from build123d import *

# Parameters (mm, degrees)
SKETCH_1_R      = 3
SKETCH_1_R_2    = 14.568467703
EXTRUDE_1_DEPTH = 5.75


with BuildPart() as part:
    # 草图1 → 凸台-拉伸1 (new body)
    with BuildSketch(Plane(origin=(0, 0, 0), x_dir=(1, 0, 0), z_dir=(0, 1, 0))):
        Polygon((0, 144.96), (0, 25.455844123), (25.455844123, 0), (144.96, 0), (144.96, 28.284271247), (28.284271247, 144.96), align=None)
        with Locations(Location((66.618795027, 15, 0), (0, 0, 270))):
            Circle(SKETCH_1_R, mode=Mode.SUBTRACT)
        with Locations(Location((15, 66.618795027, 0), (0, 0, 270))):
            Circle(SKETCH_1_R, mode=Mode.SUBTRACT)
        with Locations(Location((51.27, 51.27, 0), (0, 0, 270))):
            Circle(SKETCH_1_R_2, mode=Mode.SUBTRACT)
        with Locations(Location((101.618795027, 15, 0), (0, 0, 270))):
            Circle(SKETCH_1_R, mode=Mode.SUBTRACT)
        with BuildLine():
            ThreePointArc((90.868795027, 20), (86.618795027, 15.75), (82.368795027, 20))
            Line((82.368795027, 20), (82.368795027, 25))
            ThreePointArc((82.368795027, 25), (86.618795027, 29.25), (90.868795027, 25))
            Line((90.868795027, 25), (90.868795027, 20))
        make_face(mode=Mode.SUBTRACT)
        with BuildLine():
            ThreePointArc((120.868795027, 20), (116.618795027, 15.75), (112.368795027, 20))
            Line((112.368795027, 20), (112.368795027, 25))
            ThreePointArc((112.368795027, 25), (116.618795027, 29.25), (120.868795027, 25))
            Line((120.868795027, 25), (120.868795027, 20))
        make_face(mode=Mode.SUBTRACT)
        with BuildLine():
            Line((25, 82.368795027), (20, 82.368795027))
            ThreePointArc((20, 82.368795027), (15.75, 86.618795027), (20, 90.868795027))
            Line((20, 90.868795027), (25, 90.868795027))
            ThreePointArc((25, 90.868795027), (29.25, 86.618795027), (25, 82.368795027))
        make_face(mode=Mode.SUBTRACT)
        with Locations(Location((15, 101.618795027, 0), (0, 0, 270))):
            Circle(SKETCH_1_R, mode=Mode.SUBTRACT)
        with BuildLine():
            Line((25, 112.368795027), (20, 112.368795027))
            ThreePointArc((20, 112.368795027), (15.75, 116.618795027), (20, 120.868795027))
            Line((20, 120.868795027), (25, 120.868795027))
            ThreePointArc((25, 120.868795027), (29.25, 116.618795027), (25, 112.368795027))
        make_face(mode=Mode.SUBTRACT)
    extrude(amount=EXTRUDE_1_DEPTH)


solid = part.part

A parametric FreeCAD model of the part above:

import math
import FreeCAD as App
import Part
import Sketcher

V = App.Vector
Q = App.Units.Quantity


def add_polygon(sketch, points):
    """Adds a closed chain of lines whose ends are joined by coincident constraints."""
    first, n = sketch.GeometryCount, len(points)
    for a, b in zip(points, points[1:] + points[:1]):
        sketch.addGeometry(Part.LineSegment(App.Vector(*a, 0), App.Vector(*b, 0)), False)
    for i in range(n):
        sketch.addConstraint(Sketcher.Constraint("Coincident", first + i, 2, first + (i + 1) % n, 1))

doc = App.newDocument("Part")
body = doc.addObject("PartDesign::Body", "Body")

# Sketch on XZ plane
sketch1 = doc.addObject("Sketcher::SketchObject", "Sketch")
body.addObject(sketch1)
sketch1.AttachmentSupport = (doc.XZ_Plane, [""])
sketch1.MapMode = "FlatFace"
add_polygon(sketch1, [(0, -144.96), (0, -25.455844), (25.455844, 0), (144.96, 0), (144.96, -28.284271), (28.284271, -144.96)])  # lines 0-5
sketch1.addGeometry(Part.Circle(V(51.27, -51.27, 0), V(0, 0, 1), 14.568468), False)  # 6
sketch1.addGeometry(Part.Circle(V(66.618795, -15, 0), V(0, 0, 1), 3), False)  # 7
sketch1.addGeometry(Part.LineSegment(V(90.868795, -25, 0), V(90.868795, -20, 0)), False)  # 8
sketch1.addGeometry(Part.ArcOfCircle(Part.Circle(V(86.618795, -20, 0), V(0, 0, 1), 4.25), math.radians(0), math.radians(180)), False)  # 9
sketch1.addGeometry(Part.LineSegment(V(82.368795, -20, 0), V(82.368795, -25, 0)), False)  # 10
sketch1.addGeometry(Part.ArcOfCircle(Part.Circle(V(86.618795, -25, 0), V(0, 0, 1), 4.25), math.radians(180), math.radians(360)), False)  # 11
sketch1.addGeometry(Part.Circle(V(101.618795, -15, 0), V(0, 0, 1), 3), False)  # 12
sketch1.addGeometry(Part.LineSegment(V(120.868795, -25, 0), V(120.868795, -20, 0)), False)  # 13
sketch1.addGeometry(Part.ArcOfCircle(Part.Circle(V(116.618795, -20, 0), V(0, 0, 1), 4.25), math.radians(0), math.radians(180)), False)  # 14
sketch1.addGeometry(Part.LineSegment(V(112.368795, -20, 0), V(112.368795, -25, 0)), False)  # 15
sketch1.addGeometry(Part.ArcOfCircle(Part.Circle(V(116.618795, -25, 0), V(0, 0, 1), 4.25), math.radians(180), math.radians(360)), False)  # 16
sketch1.addGeometry(Part.Circle(V(15, -66.618795, 0), V(0, 0, 1), 3), False)  # 17
sketch1.addGeometry(Part.ArcOfCircle(Part.Circle(V(25, -86.618795, 0), V(0, 0, 1), 4.25), math.radians(-90), math.radians(90)), False)  # 18
sketch1.addGeometry(Part.LineSegment(V(25, -82.368795, 0), V(20, -82.368795, 0)), False)  # 19
sketch1.addGeometry(Part.ArcOfCircle(Part.Circle(V(20, -86.618795, 0), V(0, 0, 1), 4.25), math.radians(90), math.radians(270)), False)  # 20
sketch1.addGeometry(Part.LineSegment(V(20, -90.868795, 0), V(25, -90.868795, 0)), False)  # 21
sketch1.addGeometry(Part.Circle(V(15, -101.618795, 0), V(0, 0, 1), 3), False)  # 22
sketch1.addGeometry(Part.ArcOfCircle(Part.Circle(V(25, -116.618795, 0), V(0, 0, 1), 4.25), math.radians(-90), math.radians(90)), False)  # 23
sketch1.addGeometry(Part.LineSegment(V(25, -112.368795, 0), V(20, -112.368795, 0)), False)  # 24
sketch1.addGeometry(Part.ArcOfCircle(Part.Circle(V(20, -116.618795, 0), V(0, 0, 1), 4.25), math.radians(90), math.radians(270)), False)  # 25
sketch1.addGeometry(Part.LineSegment(V(20, -120.868795, 0), V(25, -120.868795, 0)), False)  # 26
sketch1.addConstraint(Sketcher.Constraint("Tangent", 8, 2, 9, 1))
sketch1.addConstraint(Sketcher.Constraint("Tangent", 9, 2, 10, 1))
sketch1.addConstraint(Sketcher.Constraint("Tangent", 10, 2, 11, 1))
sketch1.addConstraint(Sketcher.Constraint("Tangent", 11, 2, 8, 1))
sketch1.addConstraint(Sketcher.Constraint("Tangent", 13, 2, 14, 1))
sketch1.addConstraint(Sketcher.Constraint("Tangent", 14, 2, 15, 1))
sketch1.addConstraint(Sketcher.Constraint("Tangent", 15, 2, 16, 1))
sketch1.addConstraint(Sketcher.Constraint("Tangent", 16, 2, 13, 1))
sketch1.addConstraint(Sketcher.Constraint("Tangent", 18, 2, 19, 1))
sketch1.addConstraint(Sketcher.Constraint("Tangent", 19, 2, 20, 1))
sketch1.addConstraint(Sketcher.Constraint("Tangent", 20, 2, 21, 1))
sketch1.addConstraint(Sketcher.Constraint("Tangent", 21, 2, 18, 1))
sketch1.addConstraint(Sketcher.Constraint("Tangent", 23, 2, 24, 1))
sketch1.addConstraint(Sketcher.Constraint("Tangent", 24, 2, 25, 1))
sketch1.addConstraint(Sketcher.Constraint("Tangent", 25, 2, 26, 1))
sketch1.addConstraint(Sketcher.Constraint("Tangent", 26, 2, 23, 1))
sketch1.addConstraint(Sketcher.Constraint("Vertical", 0))
sketch1.addConstraint(Sketcher.Constraint("Horizontal", 2))
sketch1.addConstraint(Sketcher.Constraint("Vertical", 3))
sketch1.addConstraint(Sketcher.Constraint("Horizontal", 5))
sketch1.addConstraint(Sketcher.Constraint("Vertical", 8))
sketch1.addConstraint(Sketcher.Constraint("Vertical", 10))
sketch1.addConstraint(Sketcher.Constraint("Vertical", 13))
sketch1.addConstraint(Sketcher.Constraint("Vertical", 15))
sketch1.addConstraint(Sketcher.Constraint("Horizontal", 19))
sketch1.addConstraint(Sketcher.Constraint("Horizontal", 21))
sketch1.addConstraint(Sketcher.Constraint("Horizontal", 24))
sketch1.addConstraint(Sketcher.Constraint("Horizontal", 26))
sketch1.addConstraint(Sketcher.Constraint("Equal", 7, 12))
sketch1.addConstraint(Sketcher.Constraint("Equal", 11, 14))
sketch1.addConstraint(Sketcher.Constraint("Equal", 12, 17))
sketch1.addConstraint(Sketcher.Constraint("Equal", 16, 18))
sketch1.addConstraint(Sketcher.Constraint("Equal", 17, 22))
sketch1.addConstraint(Sketcher.Constraint("Equal", 20, 23))
sketch1.addConstraint(Sketcher.Constraint("PointOnObject", 0, 2, -2))
sketch1.addConstraint(Sketcher.Constraint("PointOnObject", 1, 2, -1))
sketch1.addConstraint(Sketcher.Constraint("Parallel", 1, 4))
sketch1.addConstraint(Sketcher.Constraint("Horizontal", 7, 3, 12, 3))
sketch1.addConstraint(Sketcher.Constraint("Horizontal", 9, 3, 14, 3))
sketch1.addConstraint(Sketcher.Constraint("Horizontal", 11, 3, 16, 3))
sketch1.addConstraint(Sketcher.Constraint("Vertical", 17, 3, 22, 3))
sketch1.addConstraint(Sketcher.Constraint("Vertical", 18, 3, 23, 3))
sketch1.addConstraint(Sketcher.Constraint("Vertical", 20, 3, 25, 3))
sketch1.addConstraint(Sketcher.Constraint("Equal", 2, 0))
sketch1.addConstraint(Sketcher.Constraint("Equal", 5, 3))
sketch1.addConstraint(Sketcher.Constraint("Equal", 26, 8))
sketch1.addConstraint(Sketcher.Constraint("Diameter", 7, Q("6 mm")))
sketch1.addConstraint(Sketcher.Constraint("DistanceX", 19, 2, 19, 1, Q("5 mm")))
sketch1.addConstraint(Sketcher.Constraint("Radius", 9, Q("4.25 mm")))
sketch1.addConstraint(Sketcher.Constraint("Distance", 1, Q("36 mm")))
sketch1.addConstraint(Sketcher.Constraint("DistanceY", 7, 3, -1, 1, Q("15 mm")))
sketch1.addConstraint(Sketcher.Constraint("DistanceY", 9, 3, -1, 1, Q("20 mm")))
sketch1.addConstraint(Sketcher.Constraint("DistanceX", -1, 1, 17, 3, Q("15 mm")))
sketch1.addConstraint(Sketcher.Constraint("DistanceX", -1, 1, 18, 3, Q("25 mm")))
sketch1.addConstraint(Sketcher.Constraint("DistanceX", 7, 3, 9, 3, Q("20 mm")))
sketch1.addConstraint(Sketcher.Constraint("DistanceX", 9, 3, 12, 3, Q("15 mm")))
sketch1.addConstraint(Sketcher.Constraint("DistanceX", 12, 3, 14, 3, Q("15 mm")))
sketch1.addConstraint(Sketcher.Constraint("DistanceY", 18, 3, 17, 3, Q("20 mm")))
sketch1.addConstraint(Sketcher.Constraint("DistanceY", 22, 3, 20, 3, Q("15 mm")))
sketch1.addConstraint(Sketcher.Constraint("DistanceY", 23, 3, 22, 3, Q("15 mm")))
sketch1.addConstraint(Sketcher.Constraint("DistanceX", -1, 1, 6, 3, Q("51.27 mm")))
sketch1.addConstraint(Sketcher.Constraint("DistanceY", 6, 3, -1, 1, Q("51.27 mm")))
sketch1.addConstraint(Sketcher.Constraint("DistanceX", -1, 1, 2, 2, Q("144.96 mm")))
sketch1.addConstraint(Sketcher.Constraint("Diameter", 6, Q("29.136935 mm")))
sketch1.addConstraint(Sketcher.Constraint("Distance", 4, Q("165.004398 mm")))
sketch1.addConstraint(Sketcher.Constraint("DistanceY", 17, 3, 0, 2, Q("41.162951 mm")))
sketch1.addConstraint(Sketcher.Constraint("DistanceX", 1, 2, 7, 3, Q("41.162951 mm")))
pad1 = doc.addObject("PartDesign::Pad", "Pad")
body.addObject(pad1)
pad1.Profile = sketch1
pad1.Length = 5.75
pad1.Reversed = True

doc.recompute()
